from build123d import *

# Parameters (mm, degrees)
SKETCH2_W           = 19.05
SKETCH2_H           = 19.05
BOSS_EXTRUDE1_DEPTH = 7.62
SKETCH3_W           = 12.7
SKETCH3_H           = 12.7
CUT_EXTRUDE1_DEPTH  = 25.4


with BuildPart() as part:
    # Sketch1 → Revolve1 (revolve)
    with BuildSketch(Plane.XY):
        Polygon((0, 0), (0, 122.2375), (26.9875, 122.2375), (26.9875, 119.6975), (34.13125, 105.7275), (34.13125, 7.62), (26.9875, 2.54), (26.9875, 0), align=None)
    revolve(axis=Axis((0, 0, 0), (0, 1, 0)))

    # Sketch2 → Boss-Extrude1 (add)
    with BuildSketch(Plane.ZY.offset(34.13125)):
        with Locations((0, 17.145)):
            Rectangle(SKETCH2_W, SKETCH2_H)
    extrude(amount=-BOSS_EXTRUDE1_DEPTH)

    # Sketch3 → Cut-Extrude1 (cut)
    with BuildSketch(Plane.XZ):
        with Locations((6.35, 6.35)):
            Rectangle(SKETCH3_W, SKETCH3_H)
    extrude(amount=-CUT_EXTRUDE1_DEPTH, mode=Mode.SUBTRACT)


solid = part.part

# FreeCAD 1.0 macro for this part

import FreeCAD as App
import Part
import Sketcher
from FreeCAD import Vector
Q = App.Units.Quantity

doc = App.newDocument("Part")
body = doc.addObject("PartDesign::Body", "Body")

# Sketch on XY plane
sketch1 = body.newObject("Sketcher::SketchObject", "Sketch")
sketch1.AttachmentSupport = (doc.getObject("XY_Plane"), [""])
sketch1.MapMode = "FlatFace"
sketch1.addGeometry([
    Part.LineSegment(Vector(0, 122.2375, 0), Vector(0, 0, 0)),  # 0
    Part.LineSegment(Vector(0, 0, 0), Vector(26.9875, 0, 0)),  # 1
    Part.LineSegment(Vector(26.9875, 0, 0), Vector(26.9875, 2.54, 0)),  # 2
    Part.LineSegment(Vector(26.9875, 2.54, 0), Vector(34.13125, 7.62, 0)),  # 3
    Part.LineSegment(Vector(34.13125, 7.62, 0), Vector(34.13125, 105.7275, 0)),  # 4
    Part.LineSegment(Vector(34.13125, 105.7275, 0), Vector(26.9875, 119.6975, 0)),  # 5
    Part.LineSegment(Vector(26.9875, 119.6975, 0), Vector(26.9875, 122.2375, 0)),  # 6
    Part.LineSegment(Vector(26.9875, 122.2375, 0), Vector(0, 122.2375, 0)),  # 7
], False)
sketch1.addConstraint([
    Sketcher.Constraint("Coincident", 0, 2, 1, 1),
    Sketcher.Constraint("Coincident", 1, 2, 2, 1),
    Sketcher.Constraint("Coincident", 2, 2, 3, 1),
    Sketcher.Constraint("Coincident", 3, 2, 4, 1),
    Sketcher.Constraint("Coincident", 4, 2, 5, 1),
    Sketcher.Constraint("Coincident", 5, 2, 6, 1),
    Sketcher.Constraint("Coincident", 6, 2, 7, 1),
    Sketcher.Constraint("Coincident", 7, 2, 0, 1),
    Sketcher.Constraint("Vertical", 0),
    Sketcher.Constraint("Horizontal", 1),
    Sketcher.Constraint("Vertical", 2),
    Sketcher.Constraint("Vertical", 4),
    Sketcher.Constraint("Vertical", 6),
    Sketcher.Constraint("Horizontal", 7),
    Sketcher.Constraint("Coincident", 0, 2, -1, 1),
    Sketcher.Constraint("Vertical", 2, 2, 5, 2),
    Sketcher.Constraint("Equal", 2, 6),
    Sketcher.Constraint("DistanceY", 2, 1, 2, 2, Q("0.1 in")),
    Sketcher.Constraint("DistanceY", -1, 1, 3, 2, Q("0.3 in")),
    Sketcher.Constraint("DistanceX", 1, 1, 1, 2, Q("1.0625 in")),
    Sketcher.Constraint("DistanceY", 0, 2, 0, 1, Q("4.8125 in")),
    Sketcher.Constraint("DistanceY", 4, 2, 5, 2, Q("0.55 in")),
    Sketcher.Constraint("DistanceX", -1, 1, 3, 2, Q("1.34375 in")),
])
revolution = body.newObject("PartDesign::Revolution", "Revolution")
revolution.Profile = sketch1
revolution.ReferenceAxis = (sketch1, ["V_Axis"])
revolution.Angle = 360

# Sketch on YZ plane
sketch2 = body.newObject("Sketcher::SketchObject", "Sketch001")
sketch2.AttachmentSupport = (doc.getObject("YZ_Plane"), [""])
sketch2.MapMode = "FlatFace"
sketch2.AttachmentOffset = App.Placement(Vector(0, 0, -1.34375 * 25.4), App.Rotation())
sketch2.addGeometry([
    Part.LineSegment(Vector(26.67, -9.525, 0), Vector(7.62, -9.525, 0)),
    Part.LineSegment(Vector(7.62, -9.525, 0), Vector(7.62, 9.525, 0)),
    Part.LineSegment(Vector(7.62, 9.525, 0), Vector(26.67, 9.525, 0)),
    Part.LineSegment(Vector(26.67, 9.525, 0), Vector(26.67, -9.525, 0)),
], False)
sketch2.addConstraint([
    Sketcher.Constraint("Coincident", 0, 2, 1, 1),
    Sketcher.Constraint("Coincident", 1, 2, 2, 1),
    Sketcher.Constraint("Coincident", 2, 2, 3, 1),
    Sketcher.Constraint("Coincident", 3, 2, 0, 1),
    Sketcher.Constraint("Horizontal", 0),
    Sketcher.Constraint("Vertical", 1),
    Sketcher.Constraint("Horizontal", 2),
    Sketcher.Constraint("Vertical", 3),
    Sketcher.Constraint("Equal", 2, 1),
    Sketcher.Constraint("DistanceX", 0, 2, 0, 1, Q("0.75 in")),
    Sketcher.Constraint("DistanceX", -1, 1, 0, 2, Q("0.3 in")),
    Sketcher.Constraint("DistanceY", 0, 2, -1, 1, Q("0.375 in")),
])
pad1 = body.newObject("PartDesign::Pad", "Pad")
pad1.Profile = sketch2
pad1.Length = Q("0.3 in")

# Sketch on XZ plane
sketch3 = body.newObject("Sketcher::SketchObject", "Sketch002")
sketch3.AttachmentSupport = (doc.getObject("XZ_Plane"), [""])
sketch3.MapMode = "FlatFace"
sketch3.addGeometry([
    Part.LineSegment(Vector(0, 12.7, 0), Vector(0, 0, 0)),
    Part.LineSegment(Vector(0, 0, 0), Vector(12.7, 0, 0)),
    Part.LineSegment(Vector(12.7, 0, 0), Vector(12.7, 12.7, 0)),
    Part.LineSegment(Vector(12.7, 12.7, 0), Vector(0, 12.7, 0)),
], False)
sketch3.addConstraint([
    Sketcher.Constraint("Coincident", 0, 2, 1, 1),
    Sketcher.Constraint("Coincident", 1, 2, 2, 1),
    Sketcher.Constraint("Coincident", 2, 2, 3, 1),
    Sketcher.Constraint("Coincident", 3, 2, 0, 1),
    Sketcher.Constraint("Vertical", 0),
    Sketcher.Constraint("Horizontal", 1),
    Sketcher.Constraint("Vertical", 2),
    Sketcher.Constraint("Horizontal", 3),
    Sketcher.Constraint("Coincident", 0, 2, -1, 1),
    Sketcher.Constraint("Equal", 3, 0),
    Sketcher.Constraint("DistanceX", 1, 1, 1, 2, Q("0.5 in")),
])
pocket1 = body.newObject("PartDesign::Pocket", "Pocket")
pocket1.Profile = sketch3
pocket1.Length = Q("1 in")

doc.recompute()
